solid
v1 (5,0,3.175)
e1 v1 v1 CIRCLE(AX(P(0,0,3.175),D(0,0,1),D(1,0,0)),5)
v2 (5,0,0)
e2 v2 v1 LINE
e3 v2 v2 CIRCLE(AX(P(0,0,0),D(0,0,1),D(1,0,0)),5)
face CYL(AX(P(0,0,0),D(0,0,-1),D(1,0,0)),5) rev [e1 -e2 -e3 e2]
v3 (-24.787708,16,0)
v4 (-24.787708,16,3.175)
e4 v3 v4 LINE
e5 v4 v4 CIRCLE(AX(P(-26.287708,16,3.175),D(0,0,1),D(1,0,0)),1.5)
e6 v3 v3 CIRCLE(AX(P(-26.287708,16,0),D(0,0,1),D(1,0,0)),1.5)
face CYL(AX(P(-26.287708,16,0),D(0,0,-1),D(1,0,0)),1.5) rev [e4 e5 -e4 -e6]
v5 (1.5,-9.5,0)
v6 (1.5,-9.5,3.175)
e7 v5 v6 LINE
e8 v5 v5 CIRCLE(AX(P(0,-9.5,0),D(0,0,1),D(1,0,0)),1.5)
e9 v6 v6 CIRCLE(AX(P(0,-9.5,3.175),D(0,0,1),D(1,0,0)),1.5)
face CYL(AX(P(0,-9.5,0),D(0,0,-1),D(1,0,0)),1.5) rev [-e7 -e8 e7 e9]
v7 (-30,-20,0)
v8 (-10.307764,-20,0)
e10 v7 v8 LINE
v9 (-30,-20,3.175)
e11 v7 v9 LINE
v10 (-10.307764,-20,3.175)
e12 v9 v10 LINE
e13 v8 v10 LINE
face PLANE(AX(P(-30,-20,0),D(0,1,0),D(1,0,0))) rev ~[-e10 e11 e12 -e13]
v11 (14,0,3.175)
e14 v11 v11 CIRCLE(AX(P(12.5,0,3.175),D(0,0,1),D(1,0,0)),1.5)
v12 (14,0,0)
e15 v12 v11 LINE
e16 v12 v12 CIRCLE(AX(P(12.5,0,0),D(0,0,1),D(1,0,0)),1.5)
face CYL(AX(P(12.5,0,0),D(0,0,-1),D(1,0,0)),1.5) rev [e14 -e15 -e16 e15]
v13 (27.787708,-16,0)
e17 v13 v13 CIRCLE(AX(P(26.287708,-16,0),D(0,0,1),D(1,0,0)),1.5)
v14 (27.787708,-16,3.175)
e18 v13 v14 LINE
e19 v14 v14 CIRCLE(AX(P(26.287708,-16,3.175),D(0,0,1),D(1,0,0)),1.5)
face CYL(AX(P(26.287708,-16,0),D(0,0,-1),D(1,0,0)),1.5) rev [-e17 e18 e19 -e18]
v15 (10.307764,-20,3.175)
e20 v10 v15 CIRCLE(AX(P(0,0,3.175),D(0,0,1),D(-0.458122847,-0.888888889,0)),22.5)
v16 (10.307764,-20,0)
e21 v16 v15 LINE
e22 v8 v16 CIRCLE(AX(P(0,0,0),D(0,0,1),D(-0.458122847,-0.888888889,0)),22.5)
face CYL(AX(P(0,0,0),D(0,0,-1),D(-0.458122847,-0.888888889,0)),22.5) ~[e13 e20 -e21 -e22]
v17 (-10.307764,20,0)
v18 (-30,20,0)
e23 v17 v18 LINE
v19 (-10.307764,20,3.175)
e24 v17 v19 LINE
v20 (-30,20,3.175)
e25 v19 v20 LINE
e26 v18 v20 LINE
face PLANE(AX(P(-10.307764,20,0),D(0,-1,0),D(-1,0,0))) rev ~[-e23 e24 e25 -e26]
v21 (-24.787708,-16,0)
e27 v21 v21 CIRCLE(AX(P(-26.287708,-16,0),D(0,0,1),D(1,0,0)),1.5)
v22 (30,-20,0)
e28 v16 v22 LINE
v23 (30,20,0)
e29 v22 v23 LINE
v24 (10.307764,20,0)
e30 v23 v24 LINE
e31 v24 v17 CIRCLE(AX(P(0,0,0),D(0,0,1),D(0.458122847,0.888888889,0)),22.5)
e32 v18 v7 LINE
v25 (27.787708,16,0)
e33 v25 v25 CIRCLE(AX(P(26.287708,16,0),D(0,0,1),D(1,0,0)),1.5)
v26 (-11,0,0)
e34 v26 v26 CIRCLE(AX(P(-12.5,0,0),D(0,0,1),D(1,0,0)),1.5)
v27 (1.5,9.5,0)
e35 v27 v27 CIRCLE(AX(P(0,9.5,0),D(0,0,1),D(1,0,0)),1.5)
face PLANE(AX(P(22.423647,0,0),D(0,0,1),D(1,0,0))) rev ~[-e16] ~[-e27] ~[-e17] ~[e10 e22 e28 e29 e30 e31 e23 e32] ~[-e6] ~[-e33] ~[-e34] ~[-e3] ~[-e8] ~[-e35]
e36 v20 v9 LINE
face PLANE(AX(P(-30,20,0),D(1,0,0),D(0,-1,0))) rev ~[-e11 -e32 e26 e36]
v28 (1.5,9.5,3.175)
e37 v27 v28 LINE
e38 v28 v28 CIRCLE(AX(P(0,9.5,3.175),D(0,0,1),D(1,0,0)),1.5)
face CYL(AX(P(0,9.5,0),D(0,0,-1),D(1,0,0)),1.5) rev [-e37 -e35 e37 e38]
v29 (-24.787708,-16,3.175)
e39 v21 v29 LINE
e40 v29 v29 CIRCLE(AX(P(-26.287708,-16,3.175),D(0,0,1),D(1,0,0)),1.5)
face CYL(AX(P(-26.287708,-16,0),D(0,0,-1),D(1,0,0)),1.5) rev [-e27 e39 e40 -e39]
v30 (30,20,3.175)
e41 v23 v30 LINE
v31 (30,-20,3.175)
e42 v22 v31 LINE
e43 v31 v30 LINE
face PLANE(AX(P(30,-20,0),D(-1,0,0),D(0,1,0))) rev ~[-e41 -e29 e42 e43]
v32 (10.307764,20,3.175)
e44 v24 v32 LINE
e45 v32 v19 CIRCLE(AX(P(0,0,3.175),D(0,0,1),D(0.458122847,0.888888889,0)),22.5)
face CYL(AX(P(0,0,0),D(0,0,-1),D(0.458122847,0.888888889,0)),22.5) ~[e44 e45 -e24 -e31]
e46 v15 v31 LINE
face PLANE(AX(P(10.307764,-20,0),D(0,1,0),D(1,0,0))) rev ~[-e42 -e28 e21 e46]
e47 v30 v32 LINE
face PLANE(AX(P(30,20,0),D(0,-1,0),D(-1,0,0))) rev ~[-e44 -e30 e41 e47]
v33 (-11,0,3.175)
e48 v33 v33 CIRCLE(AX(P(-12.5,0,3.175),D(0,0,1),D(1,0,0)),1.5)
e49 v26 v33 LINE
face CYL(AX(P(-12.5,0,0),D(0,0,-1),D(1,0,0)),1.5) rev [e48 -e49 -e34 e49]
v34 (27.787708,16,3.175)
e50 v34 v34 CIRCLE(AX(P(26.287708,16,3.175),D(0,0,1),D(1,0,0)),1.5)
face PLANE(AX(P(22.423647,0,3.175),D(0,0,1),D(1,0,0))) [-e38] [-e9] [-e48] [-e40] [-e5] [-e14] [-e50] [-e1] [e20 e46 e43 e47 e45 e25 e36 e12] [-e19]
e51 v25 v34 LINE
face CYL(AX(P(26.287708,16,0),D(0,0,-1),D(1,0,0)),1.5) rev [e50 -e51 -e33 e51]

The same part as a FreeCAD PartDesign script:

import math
import FreeCAD as App
import Part
import Sketcher
Q = App.Units.Quantity

doc = App.newDocument("Part")
body = doc.addObject("PartDesign::Body", "Body")

sketch1 = doc.addObject("Sketcher::SketchObject", "Sketch")
body.addObject(sketch1)
sketch1.AttachmentSupport = (doc.XY_Plane, [""])
sketch1.MapMode = "FlatFace"
sketch1.addGeometry([
    Part.LineSegment(App.Vector(10.307764, -20, 0), App.Vector(30, -20, 0)),
    Part.LineSegment(App.Vector(30, -20, 0), App.Vector(30, 20, 0)),
    Part.LineSegment(App.Vector(30, 20, 0), App.Vector(10.307764, 20, 0)),
    Part.ArcOfCircle(Part.Circle(App.Vector(0, 0, 0), App.Vector(0, 0, 1), 22.5), math.radians(62.733956), math.radians(117.266044)),
    Part.LineSegment(App.Vector(-10.307764, 20, 0), App.Vector(-30, 20, 0)),
    Part.LineSegment(App.Vector(-30, 20, 0), App.Vector(-30, -20, 0)),
    Part.LineSegment(App.Vector(-30, -20, 0), App.Vector(-10.307764, -20, 0)),
    Part.ArcOfCircle(Part.Circle(App.Vector(0, 0, 0), App.Vector(0, 0, 1), 22.5), math.radians(-117.266044), math.radians(-62.733956)),
    Part.Circle(App.Vector(-26.287708, -16, 0), App.Vector(0, 0, 1), 1.5),
    Part.Circle(App.Vector(0, -9.5, 0), App.Vector(0, 0, 1), 1.5),
    Part.Circle(App.Vector(26.287708, -16, 0), App.Vector(0, 0, 1), 1.5),
    Part.Circle(App.Vector(-12.5, 0, 0), App.Vector(0, 0, 1), 1.5),
    Part.Circle(App.Vector(-26.287708, 16, 0), App.Vector(0, 0, 1), 1.5),
    Part.Circle(App.Vector(0, 0, 0), App.Vector(0, 0, 1), 5),
    Part.Circle(App.Vector(12.5, 0, 0), App.Vector(0, 0, 1), 1.5),
    Part.Circle(App.Vector(0, 9.5, 0), App.Vector(0, 0, 1), 1.5),
    Part.Circle(App.Vector(26.287708, 16, 0), App.Vector(0, 0, 1), 1.5),
], False)
sketch1.addConstraint([
    Sketcher.Constraint("Coincident", 0, 2, 1, 1),
    Sketcher.Constraint("Coincident", 1, 2, 2, 1),
    Sketcher.Constraint("Coincident", 2, 2, 3, 1),
    Sketcher.Constraint("Coincident", 3, 2, 4, 1),
    Sketcher.Constraint("Coincident", 4, 2, 5, 1),
    Sketcher.Constraint("Coincident", 5, 2, 6, 1),
    Sketcher.Constraint("Coincident", 6, 2, 7, 1),
    Sketcher.Constraint("Coincident", 7, 2, 0, 1),
    Sketcher.Constraint("Horizontal", 0),
    Sketcher.Constraint("Vertical", 1),
    Sketcher.Constraint("Horizontal", 2),
    Sketcher.Constraint("Horizontal", 4),
    Sketcher.Constraint("Vertical", 5),
    Sketcher.Constraint("Horizontal", 6),
    Sketcher.Constraint("Coincident", 3, 3, -1, 1),
    Sketcher.Constraint("Coincident", 7, 3, -1, 1),
    Sketcher.Constraint("Coincident", 13, 3, -1, 1),
    Sketcher.Constraint("Equal", 3, 7),
    Sketcher.Constraint("Equal", 8, 9),
    Sketcher.Constraint("Equal", 9, 10),
    Sketcher.Constraint("Equal", 10, 11),
    Sketcher.Constraint("Equal", 11, 12),
    Sketcher.Constraint("Equal", 12, 14),
    Sketcher.Constraint("Equal", 14, 15),
    Sketcher.Constraint("Equal", 15, 16),
    Sketcher.Constraint("Symmetric", 10, 3, 12, 3, -1, 1),
    Sketcher.Constraint("Symmetric", 11, 3, 14, 3, -1, 1),
    Sketcher.Constraint("Symmetric", 9, 3, 15, 3, -1, 1),
    Sketcher.Constraint("Symmetric", 8, 3, 16, 3, -1, 1),
    Sketcher.Constraint("Symmetric", 0, 2, 4, 2, -1, 1),
    Sketcher.Constraint("Symmetric", 8, 3, 10, 3, -2),
    Sketcher.Constraint("PointOnObject", 9, 3, -2),
    Sketcher.Constraint("PointOnObject", 11, 3, -1),
    Sketcher.Constraint("Horizontal", 2, 2, 3, 2),
    Sketcher.Constraint("Horizontal", 0, 2, 5, 2),
    Sketcher.Constraint("Diameter", 8, Q("3 mm")),
    Sketcher.Constraint("Diameter", 13, Q("10 mm")),
    Sketcher.Constraint("Radius", 3, Q("22.5 mm")),
    Sketcher.Constraint("DistanceY", 1, 1, 1, 2, Q("40 mm")),
    Sketcher.Constraint("DistanceY", 8, 3, -1, 1, Q("16 mm")),
    Sketcher.Constraint("DistanceX", -1, 1, 0, 2, Q("30 mm")),
    Sketcher.Constraint("DistanceY", 9, 3, -1, 1, Q("9.5 mm")),
    Sketcher.Constraint("DistanceX", 11, 3, -1, 1, Q("12.5 mm")),
    Sketcher.Constraint("DistanceX", 8, 3, -1, 1, Q("26.287708 mm")),
])
pad1 = doc.addObject("PartDesign::Pad", "Pad")
body.addObject(pad1)
pad1.Profile = sketch1
pad1.Length = 3.175

doc.recompute()
